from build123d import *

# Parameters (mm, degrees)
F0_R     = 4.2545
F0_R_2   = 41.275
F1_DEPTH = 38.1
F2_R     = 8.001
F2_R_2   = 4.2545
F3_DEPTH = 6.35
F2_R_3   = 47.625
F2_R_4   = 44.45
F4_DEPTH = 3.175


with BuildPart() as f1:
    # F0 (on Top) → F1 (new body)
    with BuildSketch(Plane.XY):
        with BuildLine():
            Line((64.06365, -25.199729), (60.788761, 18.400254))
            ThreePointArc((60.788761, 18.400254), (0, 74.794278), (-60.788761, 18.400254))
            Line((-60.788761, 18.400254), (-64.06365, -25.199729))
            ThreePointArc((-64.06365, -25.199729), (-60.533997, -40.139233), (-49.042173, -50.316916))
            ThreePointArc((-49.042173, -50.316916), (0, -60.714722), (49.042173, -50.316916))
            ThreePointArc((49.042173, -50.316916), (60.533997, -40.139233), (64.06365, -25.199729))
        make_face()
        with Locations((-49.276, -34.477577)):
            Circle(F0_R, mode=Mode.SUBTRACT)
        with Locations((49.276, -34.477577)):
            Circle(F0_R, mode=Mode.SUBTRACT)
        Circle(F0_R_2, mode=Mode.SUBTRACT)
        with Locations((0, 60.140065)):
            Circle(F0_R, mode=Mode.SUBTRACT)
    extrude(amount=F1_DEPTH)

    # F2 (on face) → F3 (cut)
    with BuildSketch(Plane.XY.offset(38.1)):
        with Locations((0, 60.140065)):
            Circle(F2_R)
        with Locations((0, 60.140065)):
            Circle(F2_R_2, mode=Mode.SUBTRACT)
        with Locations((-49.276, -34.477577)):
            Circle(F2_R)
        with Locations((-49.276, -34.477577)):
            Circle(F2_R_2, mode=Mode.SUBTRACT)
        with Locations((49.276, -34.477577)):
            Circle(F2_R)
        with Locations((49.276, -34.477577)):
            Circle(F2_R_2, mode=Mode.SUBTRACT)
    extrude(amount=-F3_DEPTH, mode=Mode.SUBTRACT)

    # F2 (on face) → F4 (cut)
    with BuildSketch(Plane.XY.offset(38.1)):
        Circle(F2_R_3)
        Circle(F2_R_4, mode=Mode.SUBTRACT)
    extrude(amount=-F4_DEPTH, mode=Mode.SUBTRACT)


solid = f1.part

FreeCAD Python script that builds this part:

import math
import FreeCAD as App
import Part
import Sketcher
Q = App.Units.Quantity

doc = App.newDocument("Part")
body = doc.addObject("PartDesign::Body", "Body")

sketch1 = body.newObject("Sketcher::SketchObject", "Sketch")
sketch1.AttachmentSupport = (doc.getObject("XY_Plane"), [""])
sketch1.MapMode = "FlatFace"
sketch1.addGeometry([
    Part.LineSegment(App.Vector(64.06365, -25.199729, 0), App.Vector(60.788761, 18.400254, 0)),
    Part.ArcOfCircle(Part.Circle(App.Vector(0, 13.834278, 0), App.Vector(0, 0, 1), 60.96), math.radians(4.295544), math.radians(175.704456)),
    Part.LineSegment(App.Vector(-60.788761, 18.400254, 0), App.Vector(-64.06365, -25.199729, 0)),
    Part.ArcOfCircle(Part.Circle(App.Vector(-38.735003, -27.10222, 0), App.Vector(0, 0, 1), 25.399997), math.radians(175.704452), math.radians(246.059098)),
    Part.ArcOfCircle(Part.Circle(App.Vector(0, 60.140057, 0), App.Vector(0, 0, 1), 120.854779), math.radians(-113.940908), math.radians(-66.059092)),
    Part.ArcOfCircle(Part.Circle(App.Vector(38.735003, -27.10222, 0), App.Vector(0, 0, 1), 25.399997), math.radians(-66.059098), math.radians(4.295548)),
    Part.Circle(App.Vector(-49.276, -34.477577, 0), App.Vector(0, 0, 1), 4.2545),
    Part.Circle(App.Vector(0, 0, 0), App.Vector(0, 0, 1), 41.275),
    Part.Circle(App.Vector(49.276, -34.477577, 0), App.Vector(0, 0, 1), 4.2545),
    Part.Circle(App.Vector(0, 60.140065, 0), App.Vector(0, 0, 1), 4.2545),
], False)
sketch1.addConstraint([
    Sketcher.Constraint("Tangent", 0, 2, 1, 1),
    Sketcher.Constraint("Tangent", 1, 2, 2, 1),
    Sketcher.Constraint("Tangent", 2, 2, 3, 1),
    Sketcher.Constraint("Tangent", 3, 2, 4, 1),
    Sketcher.Constraint("Tangent", 4, 2, 5, 1),
    Sketcher.Constraint("Tangent", 5, 2, 0, 1),
    Sketcher.Constraint("Coincident", 7, 3, -1, 1),
    Sketcher.Constraint("Coincident", 9, 3, 4, 3),
    Sketcher.Constraint("Equal", 3, 5),
    Sketcher.Constraint("Equal", 6, 8),
    Sketcher.Constraint("Equal", 8, 9),
    Sketcher.Constraint("Symmetric", 3, 3, 5, 3, -2),
    Sketcher.Constraint("Symmetric", 6, 3, 8, 3, -2),
    Sketcher.Constraint("PointOnObject", 1, 3, -2),
    Sketcher.Constraint("Radius", 3, Q("0.9999999 in")),
    Sketcher.Constraint("Radius", 1, Q("2.4 in")),
    Sketcher.Constraint("Diameter", 7, Q("3.25 in")),
    Sketcher.Constraint("Diameter", 6, Q("0.335 in")),
    Sketcher.Constraint("DistanceX", 6, 3, -1, 1, Q("1.94 in")),
    Sketcher.Constraint("DistanceX", 3, 3, -1, 1, Q("1.5250001 in")),
    Sketcher.Constraint("Radius", 4, Q("120.854779 mm")),
    Sketcher.Constraint("DistanceY", 3, 3, 1, 3, Q("40.936498 mm")),
    Sketcher.Constraint("DistanceY", 3, 3, -1, 1, Q("27.10222 mm")),
    Sketcher.Constraint("DistanceY", 8, 3, 0, 2, Q("52.877831 mm")),
])
pad1 = body.newObject("PartDesign::Pad", "Pad")
pad1.Profile = sketch1
pad1.Length = Q("1.5 in")

sketch2 = body.newObject("Sketcher::SketchObject", "Sketch001")
sketch2.AttachmentSupport = (doc.getObject("XY_Plane"), [""])
sketch2.MapMode = "FlatFace"
sketch2.AttachmentOffset = App.Placement(App.Vector(0, 0, 1.5 * 25.4), App.Rotation())
sketch2.addGeometry([
    Part.Circle(App.Vector(0, 60.140065, 0), App.Vector(0, 0, 1), 8.001),
    Part.Circle(App.Vector(0, 60.140065, 0), App.Vector(0, 0, 1), 4.2545),
    Part.Circle(App.Vector(-49.276, -34.477577, 0), App.Vector(0, 0, 1), 8.001),
    Part.Circle(App.Vector(-49.276, -34.477577, 0), App.Vector(0, 0, 1), 4.2545),
    Part.Circle(App.Vector(49.276, -34.477577, 0), App.Vector(0, 0, 1), 8.001),
    Part.Circle(App.Vector(49.276, -34.477577, 0), App.Vector(0, 0, 1), 4.2545),
], False)
sketch2.addConstraint([
    Sketcher.Constraint("Coincident", 1, 3, 0, 3),
    Sketcher.Constraint("Coincident", 3, 3, 2, 3),
    Sketcher.Constraint("Coincident", 5, 3, 4, 3),
    Sketcher.Constraint("Equal", 0, 2),
    Sketcher.Constraint("Equal", 1, 3),
    Sketcher.Constraint("Equal", 2, 4),
    Sketcher.Constraint("Equal", 3, 5),
    Sketcher.Constraint("Symmetric", 2, 3, 4, 3, -2),
    Sketcher.Constraint("PointOnObject", 0, 3, -2),
    Sketcher.Constraint("Diameter", 0, Q("0.63 in")),
    Sketcher.Constraint("Diameter", 1, Q("0.335 in")),
    Sketcher.Constraint("DistanceX", 2, 3, -1, 1, Q("1.94 in")),
    Sketcher.Constraint("DistanceY", 2, 3, 0, 3, Q("94.617642 mm")),
    Sketcher.Constraint("DistanceY", -1, 1, 0, 3, Q("60.140065 mm")),
])
pocket1 = body.newObject("PartDesign::Pocket", "Pocket")
pocket1.Profile = sketch2
pocket1.Length = Q("0.25 in")

sketch3 = body.newObject("Sketcher::SketchObject", "Sketch002")
sketch3.AttachmentSupport = (doc.getObject("XY_Plane"), [""])
sketch3.MapMode = "FlatFace"
sketch3.AttachmentOffset = App.Placement(App.Vector(0, 0, 1.5 * 25.4), App.Rotation())
sketch3.addGeometry([
    Part.Circle(App.Vector(0, 0, 0), App.Vector(0, 0, 1), 47.625),
    Part.Circle(App.Vector(0, 0, 0), App.Vector(0, 0, 1), 44.45),
], False)
sketch3.addConstraint([
    Sketcher.Constraint("Coincident", 0, 3, -1, 1),
    Sketcher.Constraint("Coincident", 1, 3, -1, 1),
    Sketcher.Constraint("Diameter", 1, Q("3.5 in")),
    Sketcher.Constraint("Diameter", 0, Q("3.75 in")),
])
pocket2 = body.newObject("PartDesign::Pocket", "Pocket001")
pocket2.Profile = sketch3
pocket2.Length = Q("0.125 in")

doc.recompute()
